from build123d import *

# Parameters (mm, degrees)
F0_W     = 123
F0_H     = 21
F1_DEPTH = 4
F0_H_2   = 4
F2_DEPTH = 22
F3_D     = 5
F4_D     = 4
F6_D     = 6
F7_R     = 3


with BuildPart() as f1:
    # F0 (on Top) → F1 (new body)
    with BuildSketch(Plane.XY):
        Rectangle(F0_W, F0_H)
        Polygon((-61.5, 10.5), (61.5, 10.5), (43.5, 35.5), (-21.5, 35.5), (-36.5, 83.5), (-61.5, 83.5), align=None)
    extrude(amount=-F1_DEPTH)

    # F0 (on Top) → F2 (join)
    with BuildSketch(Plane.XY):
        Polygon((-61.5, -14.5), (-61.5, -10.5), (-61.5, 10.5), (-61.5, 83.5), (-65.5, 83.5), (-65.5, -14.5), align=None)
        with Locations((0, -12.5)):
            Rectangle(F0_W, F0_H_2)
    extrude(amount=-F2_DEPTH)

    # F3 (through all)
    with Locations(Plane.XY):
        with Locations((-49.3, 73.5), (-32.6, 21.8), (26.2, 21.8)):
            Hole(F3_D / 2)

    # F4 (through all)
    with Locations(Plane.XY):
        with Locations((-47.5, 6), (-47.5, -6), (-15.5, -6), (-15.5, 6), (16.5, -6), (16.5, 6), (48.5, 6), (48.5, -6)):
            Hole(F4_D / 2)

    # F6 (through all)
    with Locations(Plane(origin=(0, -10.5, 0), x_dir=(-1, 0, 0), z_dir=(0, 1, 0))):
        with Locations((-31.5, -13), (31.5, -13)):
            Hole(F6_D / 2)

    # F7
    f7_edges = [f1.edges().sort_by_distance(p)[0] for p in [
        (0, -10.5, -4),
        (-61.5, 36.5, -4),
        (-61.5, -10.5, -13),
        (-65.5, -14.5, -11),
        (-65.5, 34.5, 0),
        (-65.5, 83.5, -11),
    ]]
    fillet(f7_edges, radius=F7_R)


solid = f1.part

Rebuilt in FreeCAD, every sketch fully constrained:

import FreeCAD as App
import Part
import Sketcher
Q = App.Units.Quantity


def edges_at(feature, points):
    """Names of the edges that pass closest to the given points."""
    edges = feature.Shape.Edges
    near = lambda p: min(range(len(edges)), key=lambda i: edges[i].distToShape(Part.Vertex(*p))[0])
    return sorted({f"Edge{near(p) + 1}" for p in points})


def add_polygon(sketch, points):
    """Adds a closed chain of lines whose ends are joined by coincident constraints."""
    first, n = sketch.GeometryCount, len(points)
    for a, b in zip(points, points[1:] + points[:1]):
        sketch.addGeometry(Part.LineSegment(App.Vector(*a, 0), App.Vector(*b, 0)), False)
    for i in range(n):
        sketch.addConstraint(Sketcher.Constraint("Coincident", first + i, 2, first + (i + 1) % n, 1))

doc = App.newDocument("Part")
params = doc.addObject("Spreadsheet::Sheet", "Params")
for row, (alias, value) in enumerate([
    ("sketch1_width", "123 mm"),
    ("sketch1_width2", "65 mm"),
    ("sketch1_width3", "25 mm"),
    ("sketch1_height", "21 mm"),
    ("sketch1_height2", "94 mm"),
    ("pad1_length", "4 mm"),
    ("sketch2_width", "4 mm"),
    ("sketch2_width2", "127 mm"),
    ("sketch2_height", "94 mm"),
    ("pad2_length", "22 mm"),
    ("sketch3_diameter", "5 mm"),
    ("hole_diameter", "5 mm"),
    ("sketch4_diameter", "4 mm"),
    ("hole2_diameter", "4 mm"),
    ("sketch5_diameter", "6 mm"),
    ("hole3_diameter", "6 mm"),
    ("fillet_radius", "3 mm"),
], start=1):
    params.set(f"A{row}", alias)
    params.set(f"B{row}", "=" + value)
    params.setAlias(f"B{row}", alias)

body = doc.addObject("PartDesign::Body", "Body")

# Sketch on XY plane
sketch1 = body.newObject("Sketcher::SketchObject", "Sketch")
sketch1.AttachmentSupport = (doc.getObject("XY_Plane"), [""])
sketch1.MapMode = "FlatFace"
add_polygon(sketch1, [(-61.5, -10.5), (61.5, -10.5), (61.5, 10.5), (43.5, 35.5), (-21.5, 35.5), (-36.5, 83.5), (-61.5, 83.5)])  # lines 0-6
sketch1.addConstraint([
    Sketcher.Constraint("Horizontal", 0),
    Sketcher.Constraint("Vertical", 1),
    Sketcher.Constraint("Horizontal", 3),
    Sketcher.Constraint("Horizontal", 5),
    Sketcher.Constraint("Vertical", 6),
    Sketcher.Constraint("Symmetric", 1, 2, 6, 2, -1, 1),
    Sketcher.Constraint("DistanceX", 0, 1, 0, 2, Q("123 mm")),
    Sketcher.Constraint("DistanceX", 3, 2, 3, 1, Q("65 mm")),
    Sketcher.Constraint("DistanceX", 5, 2, 5, 1, Q("25 mm")),
    Sketcher.Constraint("DistanceY", 1, 1, 1, 2, Q("21 mm")),
    Sketcher.Constraint("DistanceY", 6, 2, 6, 1, Q("94 mm")),
    Sketcher.Constraint("DistanceX", 2, 2, 1, 2, Q("18 mm")),
    Sketcher.Constraint("DistanceY", 1, 2, 2, 2, Q("25 mm")),
])
sketch1.setExpression("Constraints[13]", "Params.sketch1_width")
sketch1.setExpression("Constraints[14]", "Params.sketch1_width2")
sketch1.setExpression("Constraints[15]", "Params.sketch1_width3")
sketch1.setExpression("Constraints[16]", "Params.sketch1_height")
sketch1.setExpression("Constraints[17]", "Params.sketch1_height2")
pad1 = body.newObject("PartDesign::Pad", "Pad")
pad1.Profile = sketch1
pad1.setExpression("Length", "Params.pad1_length")
pad1.Reversed = True

# Sketch on XY plane
sketch2 = body.newObject("Sketcher::SketchObject", "Sketch001")
sketch2.AttachmentSupport = (doc.getObject("XY_Plane"), [""])
sketch2.MapMode = "FlatFace"
add_polygon(sketch2, [(-61.5, -10.5), (-61.5, 83.5), (-65.5, 83.5), (-65.5, -14.5), (61.5, -14.5), (61.5, -10.5)])  # lines 0-5
sketch2.addConstraint([
    Sketcher.Constraint("Vertical", 0),
    Sketcher.Constraint("Horizontal", 1),
    Sketcher.Constraint("Vertical", 2),
    Sketcher.Constraint("Horizontal", 3),
    Sketcher.Constraint("Vertical", 4),
    Sketcher.Constraint("Horizontal", 5),
    Sketcher.Constraint("Equal", 1, 4),
    Sketcher.Constraint("DistanceX", 1, 2, 1, 1, Q("4 mm")),
    Sketcher.Constraint("DistanceX", 3, 1, 3, 2, Q("127 mm")),
    Sketcher.Constraint("DistanceY", 0, 1, 0, 2, Q("94 mm")),
    Sketcher.Constraint("DistanceX", 0, 2, -1, 1, Q("61.5 mm")),
    Sketcher.Constraint("DistanceY", -1, 1, 0, 2, Q("83.5 mm")),
])
sketch2.setExpression("Constraints[13]", "Params.sketch2_width")
sketch2.setExpression("Constraints[14]", "Params.sketch2_width2")
sketch2.setExpression("Constraints[15]", "Params.sketch2_height")
pad2 = body.newObject("PartDesign::Pad", "Pad001")
pad2.Profile = sketch2
pad2.setExpression("Length", "Params.pad2_length")
pad2.Reversed = True

# Sketch on XY plane
sketch3 = body.newObject("Sketcher::SketchObject", "Sketch002")
sketch3.AttachmentSupport = (doc.getObject("XY_Plane"), [""])
sketch3.MapMode = "FlatFace"
sketch3.addGeometry([
    Part.Circle(App.Vector(-49.3, 73.5, 0), App.Vector(0, 0, 1), 2.5),
    Part.Circle(App.Vector(-32.6, 21.8, 0), App.Vector(0, 0, 1), 2.5),
    Part.Circle(App.Vector(26.2, 21.8, 0), App.Vector(0, 0, 1), 2.5),
], False)
sketch3.addConstraint([
    Sketcher.Constraint("Equal", 0, 1),
    Sketcher.Constraint("Equal", 1, 2),
    Sketcher.Constraint("Horizontal", 1, 3, 2, 3),
    Sketcher.Constraint("Diameter", 0, Q("5 mm")),
    Sketcher.Constraint("DistanceX", 0, 3, -1, 1, Q("49.3 mm")),
    Sketcher.Constraint("DistanceY", -1, 1, 0, 3, Q("73.5 mm")),
    Sketcher.Constraint("DistanceX", 1, 3, -1, 1, Q("32.6 mm")),
    Sketcher.Constraint("DistanceY", -1, 1, 1, 3, Q("21.8 mm")),
    Sketcher.Constraint("DistanceX", -1, 1, 2, 3, Q("26.2 mm")),
])
sketch3.setExpression("Constraints[3]", "Params.sketch3_diameter")
doc.recompute()
hole = body.newObject("PartDesign::Hole", "Hole")
hole.Profile = sketch3
hole.ThreadType = "None"
hole.setExpression("Diameter", "Params.hole_diameter")
hole.DepthType = "ThroughAll"

# Sketch on XY plane
sketch4 = body.newObject("Sketcher::SketchObject", "Sketch003")
sketch4.AttachmentSupport = (doc.getObject("XY_Plane"), [""])
sketch4.MapMode = "FlatFace"
sketch4.addGeometry([
    Part.Circle(App.Vector(-47.5, 6, 0), App.Vector(0, 0, 1), 2),  # 0
    Part.Circle(App.Vector(-47.5, -6, 0), App.Vector(0, 0, 1), 2),  # 1
    Part.Circle(App.Vector(-15.5, -6, 0), App.Vector(0, 0, 1), 2),  # 2
    Part.Circle(App.Vector(-15.5, 6, 0), App.Vector(0, 0, 1), 2),  # 3
    Part.Circle(App.Vector(16.5, -6, 0), App.Vector(0, 0, 1), 2),  # 4
    Part.Circle(App.Vector(16.5, 6, 0), App.Vector(0, 0, 1), 2),  # 5
    Part.Circle(App.Vector(48.5, 6, 0), App.Vector(0, 0, 1), 2),  # 6
    Part.Circle(App.Vector(48.5, -6, 0), App.Vector(0, 0, 1), 2),  # 7
], False)
sketch4.addConstraint([
    Sketcher.Constraint("Equal", 0, 1),
    Sketcher.Constraint("Equal", 1, 2),
    Sketcher.Constraint("Equal", 2, 3),
    Sketcher.Constraint("Equal", 3, 4),
    Sketcher.Constraint("Equal", 4, 5),
    Sketcher.Constraint("Equal", 5, 6),
    Sketcher.Constraint("Equal", 6, 7),
    Sketcher.Constraint("Symmetric", 0, 3, 1, 3, -1),
    Sketcher.Constraint("Symmetric", 2, 3, 3, 3, -1),
    Sketcher.Constraint("Symmetric", 4, 3, 5, 3, -1),
    Sketcher.Constraint("Symmetric", 6, 3, 7, 3, -1),
    Sketcher.Constraint("Horizontal", 1, 3, 2, 3),
    Sketcher.Constraint("Horizontal", 2, 3, 4, 3),
    Sketcher.Constraint("Horizontal", 5, 3, 6, 3),
    Sketcher.Constraint("Diameter", 0, Q("4 mm")),
    Sketcher.Constraint("DistanceY", -1, 1, 0, 3, Q("6 mm")),
    Sketcher.Constraint("DistanceX", 1, 3, 2, 3, Q("32 mm")),
    Sketcher.Constraint("DistanceX", 2, 3, 4, 3, Q("32 mm")),
    Sketcher.Constraint("DistanceX", 5, 3, 6, 3, Q("32 mm")),
    Sketcher.Constraint("DistanceX", 0, 3, -1, 1, Q("47.5 mm")),
])
sketch4.setExpression("Constraints[14]", "Params.sketch4_diameter")
doc.recompute()
hole2 = body.newObject("PartDesign::Hole", "Hole001")
hole2.Profile = sketch4
hole2.ThreadType = "None"
hole2.setExpression("Diameter", "Params.hole2_diameter")
hole2.DepthType = "ThroughAll"

# Sketch on XZ plane
sketch5 = body.newObject("Sketcher::SketchObject", "Sketch004")
sketch5.AttachmentSupport = (doc.getObject("XZ_Plane"), [""])
sketch5.MapMode = "FlatFace"
sketch5.AttachmentOffset = App.Placement(App.Vector(0, 0, 10.5), App.Rotation())
sketch5.addGeometry([
    Part.Circle(App.Vector(31.5, -13, 0), App.Vector(0, 0, 1), 3),
    Part.Circle(App.Vector(-31.5, -13, 0), App.Vector(0, 0, 1), 3),
], False)
sketch5.addConstraint([
    Sketcher.Constraint("Equal", 0, 1),
    Sketcher.Constraint("Symmetric", 0, 3, 1, 3, -2),
    Sketcher.Constraint("Diameter", 0, Q("6 mm")),
    Sketcher.Constraint("DistanceY", 0, 3, -1, 1, Q("13 mm")),
    Sketcher.Constraint("DistanceX", 1, 3, 0, 3, Q("63 mm")),
])
sketch5.setExpression("Constraints[2]", "Params.sketch5_diameter")
doc.recompute()
hole3 = body.newObject("PartDesign::Hole", "Hole002")
hole3.Profile = sketch5
hole3.ThreadType = "None"
hole3.setExpression("Diameter", "Params.hole3_diameter")
hole3.DepthType = "ThroughAll"
hole3.Reversed = True
doc.recompute()

fillet = body.newObject("PartDesign::Fillet", "Fillet")
fillet.Base = (hole3, edges_at(hole3, [
    (0, -10.5, -4),
    (-61.5, 36.5, -4),
    (-61.5, -10.5, -13),
    (-65.5, -14.5, -11),
    (-65.5, 34.5, 0),
    (-65.5, 83.5, -11),
]))
fillet.setExpression("Radius", "Params.fillet_radius")

doc.recompute()
